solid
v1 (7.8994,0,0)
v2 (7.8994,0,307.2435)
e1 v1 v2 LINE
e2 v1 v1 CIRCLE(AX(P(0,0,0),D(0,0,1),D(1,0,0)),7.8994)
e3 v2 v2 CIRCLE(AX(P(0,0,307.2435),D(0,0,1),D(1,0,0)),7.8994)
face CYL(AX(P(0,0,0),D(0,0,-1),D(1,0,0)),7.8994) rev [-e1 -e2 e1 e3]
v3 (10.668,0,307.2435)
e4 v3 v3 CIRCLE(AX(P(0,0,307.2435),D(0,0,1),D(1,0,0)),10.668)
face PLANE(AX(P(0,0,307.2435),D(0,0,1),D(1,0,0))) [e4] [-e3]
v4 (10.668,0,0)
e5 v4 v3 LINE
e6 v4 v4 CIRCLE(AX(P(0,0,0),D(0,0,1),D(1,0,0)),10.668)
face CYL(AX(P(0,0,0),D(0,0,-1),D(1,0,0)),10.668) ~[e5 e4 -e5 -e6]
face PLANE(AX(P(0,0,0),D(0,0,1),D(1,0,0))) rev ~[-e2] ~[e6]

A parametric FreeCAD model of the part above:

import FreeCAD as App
import Part
import Sketcher

V = App.Vector
Q = App.Units.Quantity

doc = App.newDocument("Part")
body = doc.addObject("PartDesign::Body", "Body")

sketch1 = doc.addObject("Sketcher::SketchObject", "Sketch")
body.addObject(sketch1)
sketch1.AttachmentSupport = (doc.XY_Plane, [""])
sketch1.MapMode = "FlatFace"
sketch1.addGeometry([
    Part.Circle(V(0, 0, 0), V(0, 0, 1), 11),
    Part.Circle(V(0, 0, 0), V(0, 0, 1), 8),
], False)
sketch1.addConstraint([
    Sketcher.Constraint("Coincident", 0, 3, -1, 1),
    Sketcher.Constraint("Coincident", 1, 3, -1, 1),
    Sketcher.Constraint("Diameter", 0, Q("0.84 in")),
    Sketcher.Constraint("Diameter", 1, Q("0.622 in")),
])
pad1 = doc.addObject("PartDesign::Pad", "Pad")
body.addObject(pad1)
pad1.Profile = sketch1
pad1.Length = Q("12.0962008 in")

doc.recompute()
